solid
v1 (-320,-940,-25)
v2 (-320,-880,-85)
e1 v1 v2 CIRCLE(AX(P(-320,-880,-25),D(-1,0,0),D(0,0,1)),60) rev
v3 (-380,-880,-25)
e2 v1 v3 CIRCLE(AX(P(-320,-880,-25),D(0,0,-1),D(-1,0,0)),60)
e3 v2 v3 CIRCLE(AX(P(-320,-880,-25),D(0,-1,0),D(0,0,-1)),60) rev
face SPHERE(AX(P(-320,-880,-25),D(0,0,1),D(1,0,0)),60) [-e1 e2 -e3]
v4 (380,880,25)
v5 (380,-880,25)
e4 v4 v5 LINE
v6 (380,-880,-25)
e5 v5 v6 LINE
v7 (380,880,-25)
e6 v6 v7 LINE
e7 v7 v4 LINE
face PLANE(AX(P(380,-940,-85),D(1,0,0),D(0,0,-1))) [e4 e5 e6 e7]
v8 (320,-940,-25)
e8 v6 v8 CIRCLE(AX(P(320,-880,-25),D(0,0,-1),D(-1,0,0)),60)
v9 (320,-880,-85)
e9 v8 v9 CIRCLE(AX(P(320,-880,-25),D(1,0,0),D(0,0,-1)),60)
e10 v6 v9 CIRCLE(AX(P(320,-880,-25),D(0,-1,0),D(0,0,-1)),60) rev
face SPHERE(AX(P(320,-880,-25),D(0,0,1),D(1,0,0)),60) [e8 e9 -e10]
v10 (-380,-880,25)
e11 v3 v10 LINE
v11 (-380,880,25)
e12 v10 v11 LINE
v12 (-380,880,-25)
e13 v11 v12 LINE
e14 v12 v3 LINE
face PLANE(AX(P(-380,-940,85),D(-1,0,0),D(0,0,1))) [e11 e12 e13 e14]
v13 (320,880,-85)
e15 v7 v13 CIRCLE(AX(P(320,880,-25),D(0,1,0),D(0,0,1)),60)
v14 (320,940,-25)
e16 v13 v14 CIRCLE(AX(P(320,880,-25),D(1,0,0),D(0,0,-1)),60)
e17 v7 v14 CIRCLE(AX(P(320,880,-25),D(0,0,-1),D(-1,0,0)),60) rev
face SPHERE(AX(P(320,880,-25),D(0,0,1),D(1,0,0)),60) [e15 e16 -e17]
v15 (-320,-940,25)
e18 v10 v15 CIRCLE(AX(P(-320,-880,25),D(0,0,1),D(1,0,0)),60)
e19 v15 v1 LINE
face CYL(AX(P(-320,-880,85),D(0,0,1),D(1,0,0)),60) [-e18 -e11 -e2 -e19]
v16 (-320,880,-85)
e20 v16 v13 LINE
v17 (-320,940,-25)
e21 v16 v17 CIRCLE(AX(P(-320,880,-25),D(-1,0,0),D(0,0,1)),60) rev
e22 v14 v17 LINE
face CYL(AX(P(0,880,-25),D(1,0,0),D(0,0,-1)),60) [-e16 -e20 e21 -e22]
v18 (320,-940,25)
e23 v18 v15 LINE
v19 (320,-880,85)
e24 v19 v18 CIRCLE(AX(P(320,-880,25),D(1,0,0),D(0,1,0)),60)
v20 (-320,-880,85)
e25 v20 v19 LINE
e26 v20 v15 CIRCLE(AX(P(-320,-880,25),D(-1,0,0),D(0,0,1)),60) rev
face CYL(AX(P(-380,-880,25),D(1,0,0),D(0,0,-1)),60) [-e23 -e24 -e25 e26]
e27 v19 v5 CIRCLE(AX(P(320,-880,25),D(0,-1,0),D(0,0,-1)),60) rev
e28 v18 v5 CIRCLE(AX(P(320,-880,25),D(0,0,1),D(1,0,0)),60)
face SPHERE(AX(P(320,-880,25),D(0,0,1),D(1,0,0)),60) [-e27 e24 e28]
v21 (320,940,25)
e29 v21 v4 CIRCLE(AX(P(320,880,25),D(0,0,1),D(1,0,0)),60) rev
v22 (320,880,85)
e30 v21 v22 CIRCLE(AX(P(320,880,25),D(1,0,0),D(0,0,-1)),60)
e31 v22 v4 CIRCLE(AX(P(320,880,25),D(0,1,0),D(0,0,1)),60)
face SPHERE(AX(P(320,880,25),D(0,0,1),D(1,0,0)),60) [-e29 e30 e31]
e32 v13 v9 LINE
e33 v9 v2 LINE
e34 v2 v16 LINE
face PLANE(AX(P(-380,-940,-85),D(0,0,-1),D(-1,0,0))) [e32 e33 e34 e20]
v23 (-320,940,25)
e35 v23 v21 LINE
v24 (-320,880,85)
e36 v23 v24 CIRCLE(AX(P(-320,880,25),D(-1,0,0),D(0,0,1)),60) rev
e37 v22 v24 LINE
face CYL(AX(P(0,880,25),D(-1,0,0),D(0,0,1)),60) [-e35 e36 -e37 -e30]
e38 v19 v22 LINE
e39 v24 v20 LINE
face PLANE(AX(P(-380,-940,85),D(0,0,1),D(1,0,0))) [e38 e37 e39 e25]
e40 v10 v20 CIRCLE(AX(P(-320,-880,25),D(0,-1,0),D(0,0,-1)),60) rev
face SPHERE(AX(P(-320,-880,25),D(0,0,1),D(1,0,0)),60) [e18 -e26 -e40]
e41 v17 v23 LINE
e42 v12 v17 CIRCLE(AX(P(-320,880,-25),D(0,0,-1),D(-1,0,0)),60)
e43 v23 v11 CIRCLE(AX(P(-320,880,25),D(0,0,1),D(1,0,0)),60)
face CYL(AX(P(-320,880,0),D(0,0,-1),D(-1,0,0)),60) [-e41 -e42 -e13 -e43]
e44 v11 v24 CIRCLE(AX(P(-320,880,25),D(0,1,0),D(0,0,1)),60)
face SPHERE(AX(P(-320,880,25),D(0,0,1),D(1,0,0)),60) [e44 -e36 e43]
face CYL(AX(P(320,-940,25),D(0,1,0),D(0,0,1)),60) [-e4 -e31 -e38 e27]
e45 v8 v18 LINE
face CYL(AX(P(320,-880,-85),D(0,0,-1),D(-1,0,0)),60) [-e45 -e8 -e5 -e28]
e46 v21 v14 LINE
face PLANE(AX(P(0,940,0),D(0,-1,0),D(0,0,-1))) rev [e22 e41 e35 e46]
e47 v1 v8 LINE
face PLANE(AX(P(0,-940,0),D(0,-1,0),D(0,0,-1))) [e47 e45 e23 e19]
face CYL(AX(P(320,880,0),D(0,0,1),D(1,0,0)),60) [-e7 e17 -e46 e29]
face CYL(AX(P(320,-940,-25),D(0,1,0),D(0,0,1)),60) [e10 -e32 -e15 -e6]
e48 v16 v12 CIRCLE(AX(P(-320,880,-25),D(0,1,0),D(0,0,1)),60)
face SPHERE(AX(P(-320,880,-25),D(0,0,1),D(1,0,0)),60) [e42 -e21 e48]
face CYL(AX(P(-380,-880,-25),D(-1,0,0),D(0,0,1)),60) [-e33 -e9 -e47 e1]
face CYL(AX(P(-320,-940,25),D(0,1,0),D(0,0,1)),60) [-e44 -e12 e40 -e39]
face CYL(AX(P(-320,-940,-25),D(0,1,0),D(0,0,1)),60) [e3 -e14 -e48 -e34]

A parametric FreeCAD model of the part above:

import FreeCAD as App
import Part
import Sketcher
from FreeCAD import Vector
Q = App.Units.Quantity

doc = App.newDocument("Part")
body = doc.addObject("PartDesign::Body", "Body")

# Sketch on XZ plane
sketch1 = body.newObject("Sketcher::SketchObject", "Sketch")
sketch1.AttachmentSupport = (doc.getObject("XZ_Plane"), [""])
sketch1.MapMode = "FlatFace"
sketch1.addGeometry([
    Part.LineSegment(Vector(-380, -85, 0), Vector(-380, 85, 0)),
    Part.LineSegment(Vector(-380, 85, 0), Vector(380, 85, 0)),
    Part.LineSegment(Vector(380, 85, 0), Vector(380, -85, 0)),
    Part.LineSegment(Vector(380, -85, 0), Vector(-380, -85, 0)),
], False)
sketch1.addConstraint([
    Sketcher.Constraint("Coincident", 0, 2, 1, 1),
    Sketcher.Constraint("Coincident", 1, 2, 2, 1),
    Sketcher.Constraint("Coincident", 2, 2, 3, 1),
    Sketcher.Constraint("Coincident", 3, 2, 0, 1),
    Sketcher.Constraint("Vertical", 0),
    Sketcher.Constraint("Horizontal", 1),
    Sketcher.Constraint("Vertical", 2),
    Sketcher.Constraint("Horizontal", 3),
    Sketcher.Constraint("Symmetric", 0, 2, 2, 2, -1, 1),
    Sketcher.Constraint("DistanceX", 1, 1, 1, 2, Q("760 mm")),
    Sketcher.Constraint("DistanceY", 0, 1, 0, 2, Q("170 mm")),
])
pad1 = body.newObject("PartDesign::Pad", "Pad")
pad1.Profile = sketch1
pad1.Type = "TwoLengths"
pad1.Length = 940
pad1.Length2 = 940
pad1.Reversed = True
doc.recompute()

fillet = body.newObject("PartDesign::Fillet", "Fillet")
fillet.Base = (pad1, ["Edge1"])
fillet.UseAllEdges = True
fillet.Radius = 60

doc.recompute()
